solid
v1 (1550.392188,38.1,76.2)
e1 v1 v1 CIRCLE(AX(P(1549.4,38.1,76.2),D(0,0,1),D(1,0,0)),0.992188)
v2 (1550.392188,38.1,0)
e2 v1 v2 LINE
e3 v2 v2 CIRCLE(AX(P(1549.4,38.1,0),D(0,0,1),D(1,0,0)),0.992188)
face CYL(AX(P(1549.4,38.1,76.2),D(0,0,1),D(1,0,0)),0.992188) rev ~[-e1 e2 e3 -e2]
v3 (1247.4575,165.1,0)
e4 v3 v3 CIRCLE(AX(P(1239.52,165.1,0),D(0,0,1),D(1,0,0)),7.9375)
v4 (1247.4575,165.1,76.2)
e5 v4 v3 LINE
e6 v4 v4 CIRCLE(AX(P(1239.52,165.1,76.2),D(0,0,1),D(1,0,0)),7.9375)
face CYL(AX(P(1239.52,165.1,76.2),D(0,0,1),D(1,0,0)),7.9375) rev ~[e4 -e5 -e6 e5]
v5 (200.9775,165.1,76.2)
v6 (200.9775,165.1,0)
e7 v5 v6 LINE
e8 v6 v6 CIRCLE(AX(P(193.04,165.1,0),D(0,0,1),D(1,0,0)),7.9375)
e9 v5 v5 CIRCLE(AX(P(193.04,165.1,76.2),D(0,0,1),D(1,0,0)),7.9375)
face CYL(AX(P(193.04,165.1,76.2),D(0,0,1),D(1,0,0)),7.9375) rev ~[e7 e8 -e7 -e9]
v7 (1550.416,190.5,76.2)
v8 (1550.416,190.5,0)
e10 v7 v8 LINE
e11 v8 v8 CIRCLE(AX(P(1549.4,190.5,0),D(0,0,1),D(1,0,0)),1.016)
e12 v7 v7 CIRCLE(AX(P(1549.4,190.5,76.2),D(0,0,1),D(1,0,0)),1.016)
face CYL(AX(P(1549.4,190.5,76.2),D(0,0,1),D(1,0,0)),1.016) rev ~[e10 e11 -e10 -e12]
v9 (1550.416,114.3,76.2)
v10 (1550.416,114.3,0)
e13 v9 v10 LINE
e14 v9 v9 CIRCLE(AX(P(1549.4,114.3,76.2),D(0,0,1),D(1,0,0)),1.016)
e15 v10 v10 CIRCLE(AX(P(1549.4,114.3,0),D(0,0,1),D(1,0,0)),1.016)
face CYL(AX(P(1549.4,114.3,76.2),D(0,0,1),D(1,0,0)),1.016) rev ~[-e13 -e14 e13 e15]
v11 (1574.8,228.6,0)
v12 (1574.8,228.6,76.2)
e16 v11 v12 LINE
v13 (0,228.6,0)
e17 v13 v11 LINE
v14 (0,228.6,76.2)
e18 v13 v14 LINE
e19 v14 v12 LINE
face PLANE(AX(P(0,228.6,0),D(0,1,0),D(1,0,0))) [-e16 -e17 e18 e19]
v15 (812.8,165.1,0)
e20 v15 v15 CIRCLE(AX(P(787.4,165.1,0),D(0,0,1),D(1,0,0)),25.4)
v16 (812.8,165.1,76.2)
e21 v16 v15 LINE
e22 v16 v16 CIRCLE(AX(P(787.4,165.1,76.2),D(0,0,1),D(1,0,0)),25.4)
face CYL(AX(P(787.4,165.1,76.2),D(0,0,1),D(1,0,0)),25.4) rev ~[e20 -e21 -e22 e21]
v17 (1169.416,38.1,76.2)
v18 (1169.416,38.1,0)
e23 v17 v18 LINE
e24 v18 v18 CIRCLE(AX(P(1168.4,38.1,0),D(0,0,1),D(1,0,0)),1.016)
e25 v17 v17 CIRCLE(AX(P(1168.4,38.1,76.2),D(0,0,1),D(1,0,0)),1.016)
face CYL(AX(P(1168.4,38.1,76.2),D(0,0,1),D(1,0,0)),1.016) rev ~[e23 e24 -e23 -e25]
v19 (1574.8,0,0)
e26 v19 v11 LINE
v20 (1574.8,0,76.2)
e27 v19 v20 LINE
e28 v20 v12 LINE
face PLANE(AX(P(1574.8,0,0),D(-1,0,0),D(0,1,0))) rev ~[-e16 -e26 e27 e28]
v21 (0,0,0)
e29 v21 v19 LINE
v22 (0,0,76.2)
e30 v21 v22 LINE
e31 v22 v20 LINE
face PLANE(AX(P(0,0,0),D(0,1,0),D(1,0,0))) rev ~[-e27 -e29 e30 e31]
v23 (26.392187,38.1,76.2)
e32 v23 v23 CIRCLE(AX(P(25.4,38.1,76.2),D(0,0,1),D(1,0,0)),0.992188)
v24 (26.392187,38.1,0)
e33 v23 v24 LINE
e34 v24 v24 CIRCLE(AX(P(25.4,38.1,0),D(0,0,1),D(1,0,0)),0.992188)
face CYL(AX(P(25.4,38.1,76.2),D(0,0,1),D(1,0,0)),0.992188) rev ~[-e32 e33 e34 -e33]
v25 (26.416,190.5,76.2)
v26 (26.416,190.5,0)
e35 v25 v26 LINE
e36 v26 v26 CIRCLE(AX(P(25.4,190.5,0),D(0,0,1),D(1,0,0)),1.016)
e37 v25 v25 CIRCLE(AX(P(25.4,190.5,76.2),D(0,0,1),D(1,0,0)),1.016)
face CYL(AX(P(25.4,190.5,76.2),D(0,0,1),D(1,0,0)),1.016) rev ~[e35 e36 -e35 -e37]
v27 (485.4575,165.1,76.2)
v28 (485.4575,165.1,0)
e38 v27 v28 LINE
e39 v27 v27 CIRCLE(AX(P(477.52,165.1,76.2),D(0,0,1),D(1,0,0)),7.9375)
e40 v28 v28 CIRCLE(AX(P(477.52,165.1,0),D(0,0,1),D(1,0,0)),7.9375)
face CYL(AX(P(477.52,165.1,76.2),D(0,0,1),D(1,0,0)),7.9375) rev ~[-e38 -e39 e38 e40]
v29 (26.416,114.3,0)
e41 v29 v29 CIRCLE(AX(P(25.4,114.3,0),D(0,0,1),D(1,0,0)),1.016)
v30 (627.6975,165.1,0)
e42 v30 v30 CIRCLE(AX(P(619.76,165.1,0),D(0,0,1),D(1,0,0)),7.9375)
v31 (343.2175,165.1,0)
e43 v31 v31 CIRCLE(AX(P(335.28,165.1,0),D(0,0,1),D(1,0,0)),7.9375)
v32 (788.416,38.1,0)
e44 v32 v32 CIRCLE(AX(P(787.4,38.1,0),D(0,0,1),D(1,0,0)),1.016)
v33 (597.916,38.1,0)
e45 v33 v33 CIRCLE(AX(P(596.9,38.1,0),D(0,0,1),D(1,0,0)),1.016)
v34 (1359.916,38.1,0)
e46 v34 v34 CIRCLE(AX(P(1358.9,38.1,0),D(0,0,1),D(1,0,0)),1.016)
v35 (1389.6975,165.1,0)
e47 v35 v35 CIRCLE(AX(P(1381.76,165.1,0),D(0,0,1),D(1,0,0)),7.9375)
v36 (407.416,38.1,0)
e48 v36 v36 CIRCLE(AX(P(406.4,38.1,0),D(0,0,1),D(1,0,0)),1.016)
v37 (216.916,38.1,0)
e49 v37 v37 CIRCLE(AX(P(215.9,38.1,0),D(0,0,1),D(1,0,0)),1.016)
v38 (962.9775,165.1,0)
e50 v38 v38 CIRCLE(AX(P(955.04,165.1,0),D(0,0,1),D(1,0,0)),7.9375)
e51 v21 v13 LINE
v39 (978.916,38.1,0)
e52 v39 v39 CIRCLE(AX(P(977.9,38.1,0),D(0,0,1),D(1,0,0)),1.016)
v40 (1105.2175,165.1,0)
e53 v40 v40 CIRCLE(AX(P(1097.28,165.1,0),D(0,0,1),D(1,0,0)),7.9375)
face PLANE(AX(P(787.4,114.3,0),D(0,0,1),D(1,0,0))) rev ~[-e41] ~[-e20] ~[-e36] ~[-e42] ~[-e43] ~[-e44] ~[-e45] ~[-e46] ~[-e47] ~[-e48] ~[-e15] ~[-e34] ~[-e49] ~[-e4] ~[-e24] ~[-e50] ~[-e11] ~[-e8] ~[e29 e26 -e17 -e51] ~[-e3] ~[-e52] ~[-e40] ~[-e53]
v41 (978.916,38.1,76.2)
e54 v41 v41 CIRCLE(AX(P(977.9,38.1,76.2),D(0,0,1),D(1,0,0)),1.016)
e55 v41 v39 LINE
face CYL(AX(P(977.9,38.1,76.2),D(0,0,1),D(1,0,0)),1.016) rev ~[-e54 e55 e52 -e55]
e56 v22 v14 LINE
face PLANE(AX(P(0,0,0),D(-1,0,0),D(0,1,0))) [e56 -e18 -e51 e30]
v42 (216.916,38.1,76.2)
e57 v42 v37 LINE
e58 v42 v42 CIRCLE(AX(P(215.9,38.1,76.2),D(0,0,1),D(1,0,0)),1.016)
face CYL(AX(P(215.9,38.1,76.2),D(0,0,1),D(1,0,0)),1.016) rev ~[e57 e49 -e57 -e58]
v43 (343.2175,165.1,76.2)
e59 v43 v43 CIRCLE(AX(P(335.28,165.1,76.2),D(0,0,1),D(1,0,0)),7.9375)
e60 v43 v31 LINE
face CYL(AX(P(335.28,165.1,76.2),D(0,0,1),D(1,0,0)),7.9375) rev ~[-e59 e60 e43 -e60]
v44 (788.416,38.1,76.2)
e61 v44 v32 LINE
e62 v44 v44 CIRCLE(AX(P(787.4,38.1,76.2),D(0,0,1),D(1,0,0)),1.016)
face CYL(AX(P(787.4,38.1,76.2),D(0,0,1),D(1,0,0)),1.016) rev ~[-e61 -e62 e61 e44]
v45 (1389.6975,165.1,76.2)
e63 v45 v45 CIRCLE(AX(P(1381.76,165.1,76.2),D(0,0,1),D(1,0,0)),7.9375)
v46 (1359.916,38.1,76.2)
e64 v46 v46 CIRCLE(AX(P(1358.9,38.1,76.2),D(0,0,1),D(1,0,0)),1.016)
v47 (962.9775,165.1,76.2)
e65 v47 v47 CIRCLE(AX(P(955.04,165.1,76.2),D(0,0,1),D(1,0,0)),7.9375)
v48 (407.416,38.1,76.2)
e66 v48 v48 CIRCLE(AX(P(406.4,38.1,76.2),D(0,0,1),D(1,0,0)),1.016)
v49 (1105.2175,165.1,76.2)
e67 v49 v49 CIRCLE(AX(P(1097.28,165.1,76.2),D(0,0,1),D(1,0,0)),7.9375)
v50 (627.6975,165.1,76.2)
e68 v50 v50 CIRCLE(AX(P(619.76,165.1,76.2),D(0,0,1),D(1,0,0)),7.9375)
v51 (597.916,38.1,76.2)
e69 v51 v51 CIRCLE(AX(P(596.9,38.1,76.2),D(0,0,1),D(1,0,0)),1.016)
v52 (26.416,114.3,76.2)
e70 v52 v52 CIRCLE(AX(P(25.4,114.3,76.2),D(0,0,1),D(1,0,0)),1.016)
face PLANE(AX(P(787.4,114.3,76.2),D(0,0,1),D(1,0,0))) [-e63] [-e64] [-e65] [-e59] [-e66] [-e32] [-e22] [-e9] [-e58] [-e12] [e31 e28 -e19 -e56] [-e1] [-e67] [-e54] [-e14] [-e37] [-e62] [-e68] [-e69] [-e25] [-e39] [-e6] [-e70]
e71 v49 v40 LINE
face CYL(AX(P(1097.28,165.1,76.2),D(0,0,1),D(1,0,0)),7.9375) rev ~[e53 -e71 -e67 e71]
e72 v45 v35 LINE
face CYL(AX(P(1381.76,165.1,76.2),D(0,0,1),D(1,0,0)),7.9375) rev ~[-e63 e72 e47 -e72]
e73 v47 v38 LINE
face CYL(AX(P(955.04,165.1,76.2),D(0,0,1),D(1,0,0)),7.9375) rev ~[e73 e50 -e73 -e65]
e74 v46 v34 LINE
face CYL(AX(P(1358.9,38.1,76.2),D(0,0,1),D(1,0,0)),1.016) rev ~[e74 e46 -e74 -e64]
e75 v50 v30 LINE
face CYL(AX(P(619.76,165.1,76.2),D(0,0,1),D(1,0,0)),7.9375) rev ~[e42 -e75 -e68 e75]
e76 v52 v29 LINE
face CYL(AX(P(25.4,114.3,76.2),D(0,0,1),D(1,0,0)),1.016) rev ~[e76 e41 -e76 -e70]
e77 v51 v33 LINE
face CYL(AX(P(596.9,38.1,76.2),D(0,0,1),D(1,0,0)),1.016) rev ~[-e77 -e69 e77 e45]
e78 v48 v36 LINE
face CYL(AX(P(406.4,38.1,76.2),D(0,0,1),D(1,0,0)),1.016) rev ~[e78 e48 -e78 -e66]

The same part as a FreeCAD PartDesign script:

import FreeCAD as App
import Part
import Sketcher

V = App.Vector
Q = App.Units.Quantity

doc = App.newDocument("Part")
body = doc.addObject("PartDesign::Body", "Body")

sketch1 = doc.addObject("Sketcher::SketchObject", "Sketch")
body.addObject(sketch1)
sketch1.AttachmentSupport = (doc.XY_Plane, [""])
sketch1.MapMode = "FlatFace"
sketch1.addGeometry(Part.LineSegment(V(0, 229, 0), V(0, 0, 0)), False)
sketch1.addGeometry(Part.LineSegment(V(0, 0, 0), V(1575, 0, 0)), False)
sketch1.addGeometry(Part.LineSegment(V(1575, 0, 0), V(1575, 229, 0)), False)
sketch1.addGeometry(Part.LineSegment(V(1575, 229, 0), V(0, 229, 0)), False)
sketch1.addConstraint(Sketcher.Constraint("Coincident", 0, 2, 1, 1))
sketch1.addConstraint(Sketcher.Constraint("Coincident", 1, 2, 2, 1))
sketch1.addConstraint(Sketcher.Constraint("Coincident", 2, 2, 3, 1))
sketch1.addConstraint(Sketcher.Constraint("Coincident", 3, 2, 0, 1))
sketch1.addConstraint(Sketcher.Constraint("Vertical", 0))
sketch1.addConstraint(Sketcher.Constraint("Horizontal", 1))
sketch1.addConstraint(Sketcher.Constraint("Vertical", 2))
sketch1.addConstraint(Sketcher.Constraint("Horizontal", 3))
sketch1.addConstraint(Sketcher.Constraint("Coincident", 0, 2, -1, 1))
sketch1.addConstraint(Sketcher.Constraint("DistanceX", 1, 1, 1, 2, Q("62 in")))
sketch1.addConstraint(Sketcher.Constraint("DistanceY", 0, 2, 0, 1, Q("9 in")))
pad1 = doc.addObject("PartDesign::Pad", "Pad")
body.addObject(pad1)
pad1.Profile = sketch1
pad1.Length = Q("3 in")

sketch2 = doc.addObject("Sketcher::SketchObject", "Sketch001")
body.addObject(sketch2)
sketch2.AttachmentSupport = (doc.XY_Plane, [""])
sketch2.MapMode = "FlatFace"
sketch2.AttachmentOffset = App.Placement(V(0, 0, 3 * 25.4), App.Rotation())
sketch2.addGeometry(Part.Circle(V(193, 165, 0), V(0, 0, 1), 8), False)
sketch2.addGeometry(Part.Circle(V(335, 165, 0), V(0, 0, 1), 8), False)
sketch2.addGeometry(Part.Circle(V(478, 165, 0), V(0, 0, 1), 8), False)
sketch2.addGeometry(Part.Circle(V(620, 165, 0), V(0, 0, 1), 8), False)
sketch2.addGeometry(Part.Circle(V(955, 165, 0), V(0, 0, 1), 8), False)
sketch2.addGeometry(Part.Circle(V(1097, 165, 0), V(0, 0, 1), 8), False)
sketch2.addGeometry(Part.Circle(V(1240, 165, 0), V(0, 0, 1), 8), False)
sketch2.addGeometry(Part.Circle(V(1382, 165, 0), V(0, 0, 1), 8), False)
sketch2.addConstraint(Sketcher.Constraint("Equal", 0, 1))
sketch2.addConstraint(Sketcher.Constraint("Equal", 1, 2))
sketch2.addConstraint(Sketcher.Constraint("Equal", 2, 3))
sketch2.addConstraint(Sketcher.Constraint("Equal", 3, 4))
sketch2.addConstraint(Sketcher.Constraint("Equal", 4, 5))
sketch2.addConstraint(Sketcher.Constraint("Equal", 5, 6))
sketch2.addConstraint(Sketcher.Constraint("Equal", 6, 7))
sketch2.addConstraint(Sketcher.Constraint("Horizontal", 0, 3, 1, 3))
sketch2.addConstraint(Sketcher.Constraint("Horizontal", 1, 3, 2, 3))
sketch2.addConstraint(Sketcher.Constraint("Horizontal", 2, 3, 3, 3))
sketch2.addConstraint(Sketcher.Constraint("Horizontal", 3, 3, 4, 3))
sketch2.addConstraint(Sketcher.Constraint("Horizontal", 4, 3, 5, 3))
sketch2.addConstraint(Sketcher.Constraint("Horizontal", 5, 3, 6, 3))
sketch2.addConstraint(Sketcher.Constraint("Horizontal", 6, 3, 7, 3))
sketch2.addConstraint(Sketcher.Constraint("Diameter", 0, Q("0.625 in")))
sketch2.addConstraint(Sketcher.Constraint("DistanceX", 0, 3, 4, 3, Q("30 in")))
sketch2.addConstraint(Sketcher.Constraint("DistanceX", 1, 3, 5, 3, Q("30 in")))
sketch2.addConstraint(Sketcher.Constraint("DistanceX", 2, 3, 6, 3, Q("30 in")))
sketch2.addConstraint(Sketcher.Constraint("DistanceX", 3, 3, 7, 3, Q("30 in")))
sketch2.addConstraint(Sketcher.Constraint("DistanceX", -1, 1, 0, 3, Q("7.6 in")))
sketch2.addConstraint(Sketcher.Constraint("DistanceY", -1, 1, 0, 3, Q("6.5 in")))
sketch2.addConstraint(Sketcher.Constraint("DistanceX", -1, 1, 1, 3, Q("13.2 in")))
sketch2.addConstraint(Sketcher.Constraint("DistanceX", -1, 1, 2, 3, Q("18.8 in")))
sketch2.addConstraint(Sketcher.Constraint("DistanceX", -1, 1, 3, 3, Q("24.4 in")))
pocket1 = doc.addObject("PartDesign::Pocket", "Pocket")
body.addObject(pocket1)
pocket1.Profile = sketch2
pocket1.Type = "ThroughAll"

sketch3 = doc.addObject("Sketcher::SketchObject", "Sketch002")
body.addObject(sketch3)
sketch3.AttachmentSupport = (doc.XY_Plane, [""])
sketch3.MapMode = "FlatFace"
sketch3.AttachmentOffset = App.Placement(V(0, 0, 3 * 25.4), App.Rotation())
sketch3.addGeometry(Part.Circle(V(1549.4, 38.1, 0), V(0, 0, 1), 1), False)
sketch3.addGeometry(Part.Circle(V(1549.4, 190.5, 0), V(0, 0, 1), 1), False)
sketch3.addGeometry(Part.Circle(V(1549.4, 114.3, 0), V(0, 0, 1), 1), False)
sketch3.addGeometry(Part.Circle(V(25.4, 38.1, 0), V(0, 0, 1), 1), False)
sketch3.addGeometry(Part.Circle(V(25.4, 114.3, 0), V(0, 0, 1), 1), False)
sketch3.addGeometry(Part.Circle(V(25.4, 190.5, 0), V(0, 0, 1), 1), False)
sketch3.addGeometry(Part.Circle(V(215.9, 38.1, 0), V(0, 0, 1), 1), False)
sketch3.addGeometry(Part.Circle(V(406.4, 38.1, 0), V(0, 0, 1), 1), False)
sketch3.addGeometry(Part.Circle(V(596.9, 38.1, 0), V(0, 0, 1), 1), False)
sketch3.addGeometry(Part.Circle(V(787.4, 38.1, 0), V(0, 0, 1), 1), False)
sketch3.addGeometry(Part.Circle(V(977.9, 38.1, 0), V(0, 0, 1), 1), False)
sketch3.addGeometry(Part.Circle(V(1168.4, 38.1, 0), V(0, 0, 1), 1), False)
sketch3.addGeometry(Part.Circle(V(1358.9, 38.1, 0), V(0, 0, 1), 1), False)
sketch3.addConstraint(Sketcher.Constraint("Equal", 1, 2))
sketch3.addConstraint(Sketcher.Constraint("Equal", 0, 3))
sketch3.addConstraint(Sketcher.Constraint("Equal", 2, 4))
sketch3.addConstraint(Sketcher.Constraint("Equal", 4, 5))
sketch3.addConstraint(Sketcher.Constraint("Equal", 5, 6))
sketch3.addConstraint(Sketcher.Constraint("Equal", 6, 7))
sketch3.addConstraint(Sketcher.Constraint("Equal", 7, 8))
sketch3.addConstraint(Sketcher.Constraint("Equal", 8, 9))
sketch3.addConstraint(Sketcher.Constraint("Equal", 9, 10))
sketch3.addConstraint(Sketcher.Constraint("Equal", 10, 11))
sketch3.addConstraint(Sketcher.Constraint("Equal", 11, 12))
sketch3.addConstraint(Sketcher.Constraint("Horizontal", 0, 3, 3, 3))
sketch3.addConstraint(Sketcher.Constraint("Horizontal", 2, 3, 4, 3))
sketch3.addConstraint(Sketcher.Constraint("Horizontal", 1, 3, 5, 3))
sketch3.addConstraint(Sketcher.Constraint("Horizontal", 3, 3, 6, 3))
sketch3.addConstraint(Sketcher.Constraint("Horizontal", 6, 3, 7, 3))
sketch3.addConstraint(Sketcher.Constraint("Horizontal", 7, 3, 8, 3))
sketch3.addConstraint(Sketcher.Constraint("Horizontal", 8, 3, 9, 3))
sketch3.addConstraint(Sketcher.Constraint("Horizontal", 9, 3, 10, 3))
sketch3.addConstraint(Sketcher.Constraint("Horizontal", 10, 3, 11, 3))
sketch3.addConstraint(Sketcher.Constraint("Horizontal", 11, 3, 12, 3))
sketch3.addConstraint(Sketcher.Constraint("Vertical", 0, 3, 1, 3))
sketch3.addConstraint(Sketcher.Constraint("Vertical", 1, 3, 2, 3))
sketch3.addConstraint(Sketcher.Constraint("Vertical", 3, 3, 4, 3))
sketch3.addConstraint(Sketcher.Constraint("Vertical", 4, 3, 5, 3))
sketch3.addConstraint(Sketcher.Constraint("Diameter", 1, Q("0.08 in")))
sketch3.addConstraint(Sketcher.Constraint("Diameter", 0, Q("0.078125 in")))
sketch3.addConstraint(Sketcher.Constraint("DistanceX", -1, 1, 0, 3, Q("61 in")))
sketch3.addConstraint(Sketcher.Constraint("DistanceX", -1, 1, 3, 3, Q("1 in")))
sketch3.addConstraint(Sketcher.Constraint("DistanceX", -1, 1, 7, 3, Q("16 in")))
sketch3.addConstraint(Sketcher.Constraint("DistanceX", -1, 1, 9, 3, Q("31 in")))
sketch3.addConstraint(Sketcher.Constraint("DistanceX", -1, 1, 11, 3, Q("46 in")))
sketch3.addConstraint(Sketcher.Constraint("DistanceY", 0, 3, 1, 3, Q("6 in")))
sketch3.addConstraint(Sketcher.Constraint("DistanceY", 0, 3, 2, 3, Q("3 in")))
sketch3.addConstraint(Sketcher.Constraint("DistanceX", 6, 3, 8, 3, Q("15 in")))
sketch3.addConstraint(Sketcher.Constraint("DistanceX", 8, 3, 10, 3, Q("15 in")))
sketch3.addConstraint(Sketcher.Constraint("DistanceX", 10, 3, 12, 3, Q("15 in")))
sketch3.addConstraint(Sketcher.Constraint("DistanceY", -1, 1, 0, 3, Q("1.5 in")))
sketch3.addConstraint(Sketcher.Constraint("DistanceX", -1, 1, 6, 3, Q("8.5 in")))
pocket2 = doc.addObject("PartDesign::Pocket", "Pocket001")
body.addObject(pocket2)
pocket2.Profile = sketch3
pocket2.Length = Q("3 in")

sketch4 = doc.addObject("Sketcher::SketchObject", "Sketch003")
body.addObject(sketch4)
sketch4.AttachmentSupport = (doc.XY_Plane, [""])
sketch4.MapMode = "FlatFace"
sketch4.AttachmentOffset = App.Placement(V(0, 0, 3 * 25.4), App.Rotation())
sketch4.addGeometry(Part.Circle(V(787, 165, 0), V(0, 0, 1), 25), False)
sketch4.addConstraint(Sketcher.Constraint("Diameter", 0, Q("2 in")))
sketch4.addConstraint(Sketcher.Constraint("DistanceX", -1, 1, 0, 3, Q("31 in")))
sketch4.addConstraint(Sketcher.Constraint("DistanceY", -1, 1, 0, 3, Q("6.5 in")))
pocket3 = doc.addObject("PartDesign::Pocket", "Pocket002")
body.addObject(pocket3)
pocket3.Profile = sketch4
pocket3.Type = "ThroughAll"

doc.recompute()
